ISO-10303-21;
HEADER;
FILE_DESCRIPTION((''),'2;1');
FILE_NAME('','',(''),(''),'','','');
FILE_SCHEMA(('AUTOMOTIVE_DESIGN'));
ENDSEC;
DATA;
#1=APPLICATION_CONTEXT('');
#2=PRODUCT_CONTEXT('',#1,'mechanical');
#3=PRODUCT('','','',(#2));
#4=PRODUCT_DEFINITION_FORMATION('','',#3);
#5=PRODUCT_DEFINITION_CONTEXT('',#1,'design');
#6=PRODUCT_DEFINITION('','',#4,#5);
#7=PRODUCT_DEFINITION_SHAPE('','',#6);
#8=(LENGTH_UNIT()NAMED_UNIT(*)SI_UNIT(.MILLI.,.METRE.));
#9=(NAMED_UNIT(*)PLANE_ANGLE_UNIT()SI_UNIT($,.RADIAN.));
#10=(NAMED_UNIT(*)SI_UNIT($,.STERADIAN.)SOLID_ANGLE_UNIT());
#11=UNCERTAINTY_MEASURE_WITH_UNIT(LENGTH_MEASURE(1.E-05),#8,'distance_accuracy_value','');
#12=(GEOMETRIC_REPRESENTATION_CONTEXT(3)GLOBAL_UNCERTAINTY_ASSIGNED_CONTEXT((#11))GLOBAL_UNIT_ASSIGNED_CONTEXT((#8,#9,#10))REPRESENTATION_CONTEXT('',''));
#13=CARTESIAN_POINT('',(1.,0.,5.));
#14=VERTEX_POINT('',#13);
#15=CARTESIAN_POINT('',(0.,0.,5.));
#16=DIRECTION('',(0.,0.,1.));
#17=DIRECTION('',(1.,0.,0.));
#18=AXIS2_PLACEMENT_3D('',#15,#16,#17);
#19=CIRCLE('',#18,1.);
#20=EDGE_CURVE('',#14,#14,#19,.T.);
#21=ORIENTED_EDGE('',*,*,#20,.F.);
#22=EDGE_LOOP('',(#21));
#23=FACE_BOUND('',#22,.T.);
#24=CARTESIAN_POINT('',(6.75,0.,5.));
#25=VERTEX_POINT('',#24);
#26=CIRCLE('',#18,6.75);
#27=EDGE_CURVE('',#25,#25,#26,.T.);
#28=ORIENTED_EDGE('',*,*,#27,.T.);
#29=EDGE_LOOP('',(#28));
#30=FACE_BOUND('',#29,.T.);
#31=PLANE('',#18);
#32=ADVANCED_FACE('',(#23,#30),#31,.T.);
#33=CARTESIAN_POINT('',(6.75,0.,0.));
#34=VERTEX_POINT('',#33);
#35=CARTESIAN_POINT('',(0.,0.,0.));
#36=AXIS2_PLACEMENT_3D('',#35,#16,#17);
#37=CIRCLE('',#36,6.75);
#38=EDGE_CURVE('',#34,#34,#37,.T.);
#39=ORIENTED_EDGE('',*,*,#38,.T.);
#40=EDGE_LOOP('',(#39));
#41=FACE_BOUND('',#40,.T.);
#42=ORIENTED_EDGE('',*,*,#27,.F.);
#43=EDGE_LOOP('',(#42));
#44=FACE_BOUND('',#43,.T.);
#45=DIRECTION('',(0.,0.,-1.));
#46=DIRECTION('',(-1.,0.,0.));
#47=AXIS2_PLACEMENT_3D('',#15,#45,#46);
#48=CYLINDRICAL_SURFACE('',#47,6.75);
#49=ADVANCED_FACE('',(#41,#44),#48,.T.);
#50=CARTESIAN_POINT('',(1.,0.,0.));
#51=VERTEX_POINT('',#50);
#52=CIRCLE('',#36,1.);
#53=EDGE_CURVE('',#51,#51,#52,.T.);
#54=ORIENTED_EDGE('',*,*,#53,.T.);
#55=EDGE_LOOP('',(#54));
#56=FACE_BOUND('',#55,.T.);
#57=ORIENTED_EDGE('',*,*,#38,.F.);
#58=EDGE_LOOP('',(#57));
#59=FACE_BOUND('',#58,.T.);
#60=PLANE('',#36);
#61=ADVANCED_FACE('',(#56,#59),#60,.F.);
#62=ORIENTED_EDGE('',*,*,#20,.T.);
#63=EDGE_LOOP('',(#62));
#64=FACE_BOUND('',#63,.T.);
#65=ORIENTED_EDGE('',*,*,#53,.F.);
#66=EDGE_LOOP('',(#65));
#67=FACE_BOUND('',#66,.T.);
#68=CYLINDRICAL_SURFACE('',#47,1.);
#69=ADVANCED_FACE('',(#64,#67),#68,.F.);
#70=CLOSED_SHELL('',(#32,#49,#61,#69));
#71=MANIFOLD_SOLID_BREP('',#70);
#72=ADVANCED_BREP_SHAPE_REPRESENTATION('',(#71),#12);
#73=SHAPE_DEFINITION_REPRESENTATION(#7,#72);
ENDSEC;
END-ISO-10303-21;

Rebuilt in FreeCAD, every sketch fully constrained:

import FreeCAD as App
import Part
import Sketcher
from FreeCAD import Vector
Q = App.Units.Quantity

doc = App.newDocument("Part")
body = doc.addObject("PartDesign::Body", "Body")

sketch1 = body.newObject("Sketcher::SketchObject", "Sketch")
sketch1.AttachmentSupport = (doc.getObject("XY_Plane"), [""])
sketch1.MapMode = "FlatFace"
sketch1.addGeometry([
    Part.Circle(Vector(0, 0, 0), Vector(0, 0, 1), 6.8),
    Part.Circle(Vector(0, 0, 0), Vector(0, 0, 1), 1),
], False)
sketch1.addConstraint([
    Sketcher.Constraint("Coincident", 0, 3, -1, 1),
    Sketcher.Constraint("Coincident", 1, 3, -1, 1),
    Sketcher.Constraint("Diameter", 1, Q("2 mm")),
    Sketcher.Constraint("Diameter", 0, Q("13.5 mm")),
])
pad1 = body.newObject("PartDesign::Pad", "Pad")
pad1.Profile = sketch1
pad1.Length = 5

doc.recompute()
